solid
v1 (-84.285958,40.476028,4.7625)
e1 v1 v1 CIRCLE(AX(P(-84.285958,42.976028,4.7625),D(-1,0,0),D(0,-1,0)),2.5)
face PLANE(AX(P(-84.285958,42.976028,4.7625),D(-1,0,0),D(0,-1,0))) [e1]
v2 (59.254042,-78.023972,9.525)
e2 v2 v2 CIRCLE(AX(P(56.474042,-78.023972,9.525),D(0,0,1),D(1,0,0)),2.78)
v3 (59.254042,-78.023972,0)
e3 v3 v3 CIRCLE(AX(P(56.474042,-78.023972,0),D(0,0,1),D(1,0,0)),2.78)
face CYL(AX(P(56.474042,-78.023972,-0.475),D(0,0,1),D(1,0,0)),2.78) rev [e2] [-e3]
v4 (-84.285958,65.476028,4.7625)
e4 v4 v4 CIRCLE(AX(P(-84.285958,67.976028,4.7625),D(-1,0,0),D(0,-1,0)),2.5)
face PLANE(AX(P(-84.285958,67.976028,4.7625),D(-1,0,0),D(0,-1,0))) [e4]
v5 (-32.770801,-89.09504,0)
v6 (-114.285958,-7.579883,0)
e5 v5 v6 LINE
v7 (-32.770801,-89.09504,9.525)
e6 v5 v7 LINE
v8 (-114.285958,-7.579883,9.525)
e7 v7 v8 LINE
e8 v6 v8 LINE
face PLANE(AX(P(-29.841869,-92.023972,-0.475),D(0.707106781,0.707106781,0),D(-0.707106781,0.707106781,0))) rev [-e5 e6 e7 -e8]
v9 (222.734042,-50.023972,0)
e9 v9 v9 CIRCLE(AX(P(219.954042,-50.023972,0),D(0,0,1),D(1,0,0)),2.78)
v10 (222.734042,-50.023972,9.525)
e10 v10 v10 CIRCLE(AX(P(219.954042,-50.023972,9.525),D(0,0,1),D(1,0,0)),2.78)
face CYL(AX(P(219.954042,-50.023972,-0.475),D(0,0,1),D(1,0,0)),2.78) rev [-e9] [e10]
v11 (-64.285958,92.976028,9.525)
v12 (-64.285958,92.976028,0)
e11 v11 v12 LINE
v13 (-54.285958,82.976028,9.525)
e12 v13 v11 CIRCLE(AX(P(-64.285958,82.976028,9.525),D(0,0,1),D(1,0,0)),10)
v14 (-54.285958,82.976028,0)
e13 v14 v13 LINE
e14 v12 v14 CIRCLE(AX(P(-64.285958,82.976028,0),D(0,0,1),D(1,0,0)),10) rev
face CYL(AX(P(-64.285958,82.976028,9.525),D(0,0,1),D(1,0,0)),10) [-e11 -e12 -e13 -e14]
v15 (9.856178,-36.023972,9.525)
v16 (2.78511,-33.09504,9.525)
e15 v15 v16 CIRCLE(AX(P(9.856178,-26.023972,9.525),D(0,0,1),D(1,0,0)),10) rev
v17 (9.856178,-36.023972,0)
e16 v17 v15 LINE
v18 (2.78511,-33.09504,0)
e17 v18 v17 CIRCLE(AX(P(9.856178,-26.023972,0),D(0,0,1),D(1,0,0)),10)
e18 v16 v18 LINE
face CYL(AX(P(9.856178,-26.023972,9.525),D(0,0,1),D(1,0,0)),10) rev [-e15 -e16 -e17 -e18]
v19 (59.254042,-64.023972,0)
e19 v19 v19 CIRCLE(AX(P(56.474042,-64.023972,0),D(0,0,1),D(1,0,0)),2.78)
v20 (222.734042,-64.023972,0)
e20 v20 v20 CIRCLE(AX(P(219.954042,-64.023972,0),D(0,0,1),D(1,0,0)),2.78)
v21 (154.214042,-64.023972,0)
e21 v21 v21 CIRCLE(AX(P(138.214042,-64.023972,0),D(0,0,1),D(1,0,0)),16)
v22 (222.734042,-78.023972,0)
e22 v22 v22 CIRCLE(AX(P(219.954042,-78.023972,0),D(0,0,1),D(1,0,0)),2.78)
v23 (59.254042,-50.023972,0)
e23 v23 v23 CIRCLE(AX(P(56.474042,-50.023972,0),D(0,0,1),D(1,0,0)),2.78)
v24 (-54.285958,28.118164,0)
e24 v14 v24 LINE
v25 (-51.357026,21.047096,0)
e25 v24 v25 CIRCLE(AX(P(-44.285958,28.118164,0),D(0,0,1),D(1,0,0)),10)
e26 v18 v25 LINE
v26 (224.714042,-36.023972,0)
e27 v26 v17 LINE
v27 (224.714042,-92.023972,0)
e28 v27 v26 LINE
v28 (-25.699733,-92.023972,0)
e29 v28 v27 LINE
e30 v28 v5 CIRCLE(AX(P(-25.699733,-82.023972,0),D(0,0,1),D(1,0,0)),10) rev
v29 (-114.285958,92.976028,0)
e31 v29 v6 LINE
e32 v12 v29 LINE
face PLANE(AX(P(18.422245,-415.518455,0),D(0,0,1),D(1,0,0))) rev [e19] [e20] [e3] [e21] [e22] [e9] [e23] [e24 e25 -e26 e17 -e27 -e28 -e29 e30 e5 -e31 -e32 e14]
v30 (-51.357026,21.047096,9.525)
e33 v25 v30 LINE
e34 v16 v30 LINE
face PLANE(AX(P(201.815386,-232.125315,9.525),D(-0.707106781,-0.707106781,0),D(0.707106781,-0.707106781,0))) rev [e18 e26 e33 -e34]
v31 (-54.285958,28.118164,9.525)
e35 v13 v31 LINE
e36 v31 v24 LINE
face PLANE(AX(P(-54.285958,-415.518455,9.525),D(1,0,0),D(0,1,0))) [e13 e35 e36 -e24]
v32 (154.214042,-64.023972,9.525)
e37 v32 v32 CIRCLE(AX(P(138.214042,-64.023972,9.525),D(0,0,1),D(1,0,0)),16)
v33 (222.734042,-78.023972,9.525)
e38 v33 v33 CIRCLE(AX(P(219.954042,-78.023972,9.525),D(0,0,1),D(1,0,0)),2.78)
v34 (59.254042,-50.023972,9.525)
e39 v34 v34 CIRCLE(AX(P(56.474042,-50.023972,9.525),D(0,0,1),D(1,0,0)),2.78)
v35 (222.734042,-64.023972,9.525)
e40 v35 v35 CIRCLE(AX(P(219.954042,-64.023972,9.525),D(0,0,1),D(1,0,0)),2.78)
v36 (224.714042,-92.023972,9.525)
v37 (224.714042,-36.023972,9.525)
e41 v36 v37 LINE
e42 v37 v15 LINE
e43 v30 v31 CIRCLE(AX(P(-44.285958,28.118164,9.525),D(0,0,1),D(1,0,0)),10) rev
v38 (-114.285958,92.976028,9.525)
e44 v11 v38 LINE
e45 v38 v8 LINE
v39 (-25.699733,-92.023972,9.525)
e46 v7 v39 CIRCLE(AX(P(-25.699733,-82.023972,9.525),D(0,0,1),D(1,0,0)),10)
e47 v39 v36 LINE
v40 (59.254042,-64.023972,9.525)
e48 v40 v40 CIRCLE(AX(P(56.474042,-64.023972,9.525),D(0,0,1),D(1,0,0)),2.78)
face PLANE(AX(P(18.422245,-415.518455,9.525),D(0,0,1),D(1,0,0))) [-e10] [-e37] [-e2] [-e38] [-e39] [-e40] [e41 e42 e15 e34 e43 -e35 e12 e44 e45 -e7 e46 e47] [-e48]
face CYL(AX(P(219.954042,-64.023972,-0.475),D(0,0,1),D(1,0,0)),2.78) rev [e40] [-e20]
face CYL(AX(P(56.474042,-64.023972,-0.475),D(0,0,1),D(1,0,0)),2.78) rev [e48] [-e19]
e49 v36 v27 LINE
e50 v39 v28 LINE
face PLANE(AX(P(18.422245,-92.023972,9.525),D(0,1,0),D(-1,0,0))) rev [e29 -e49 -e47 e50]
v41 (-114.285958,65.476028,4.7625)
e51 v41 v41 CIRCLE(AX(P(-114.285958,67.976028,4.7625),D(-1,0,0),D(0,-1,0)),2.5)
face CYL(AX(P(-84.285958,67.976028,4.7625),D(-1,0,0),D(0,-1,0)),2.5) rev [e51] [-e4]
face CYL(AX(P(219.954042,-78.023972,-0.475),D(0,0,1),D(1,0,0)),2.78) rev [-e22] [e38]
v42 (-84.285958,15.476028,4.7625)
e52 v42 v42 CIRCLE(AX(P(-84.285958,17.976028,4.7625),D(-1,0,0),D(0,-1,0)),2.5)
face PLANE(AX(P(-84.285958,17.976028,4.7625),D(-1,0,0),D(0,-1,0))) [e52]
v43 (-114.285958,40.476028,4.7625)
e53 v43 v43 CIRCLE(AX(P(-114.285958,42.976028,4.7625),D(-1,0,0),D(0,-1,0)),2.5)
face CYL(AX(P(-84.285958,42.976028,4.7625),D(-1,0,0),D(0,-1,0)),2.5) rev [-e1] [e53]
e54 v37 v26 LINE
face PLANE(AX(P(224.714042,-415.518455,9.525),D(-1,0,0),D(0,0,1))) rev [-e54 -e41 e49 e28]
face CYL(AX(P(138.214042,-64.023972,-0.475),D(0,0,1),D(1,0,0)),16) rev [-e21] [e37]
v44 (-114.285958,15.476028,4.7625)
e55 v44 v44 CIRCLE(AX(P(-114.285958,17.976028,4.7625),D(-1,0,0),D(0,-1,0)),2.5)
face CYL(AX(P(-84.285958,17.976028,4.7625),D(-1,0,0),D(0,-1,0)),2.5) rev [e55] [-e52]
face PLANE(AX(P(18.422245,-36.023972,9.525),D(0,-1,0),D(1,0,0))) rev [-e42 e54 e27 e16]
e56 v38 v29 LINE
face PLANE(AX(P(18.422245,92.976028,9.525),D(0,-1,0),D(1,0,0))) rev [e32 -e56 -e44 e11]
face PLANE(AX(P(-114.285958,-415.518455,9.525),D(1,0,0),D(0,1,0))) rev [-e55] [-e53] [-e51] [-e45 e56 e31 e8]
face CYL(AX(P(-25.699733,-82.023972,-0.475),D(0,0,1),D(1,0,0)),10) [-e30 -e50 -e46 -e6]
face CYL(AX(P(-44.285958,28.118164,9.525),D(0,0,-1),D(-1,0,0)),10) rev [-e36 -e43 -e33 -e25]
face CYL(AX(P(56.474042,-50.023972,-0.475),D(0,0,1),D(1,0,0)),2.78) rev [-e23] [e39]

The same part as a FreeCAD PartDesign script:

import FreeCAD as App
import Part
import Sketcher
from FreeCAD import Vector


def edges_at(feature, points):
    """Names of the edges that pass closest to the given points."""
    edges = feature.Shape.Edges
    near = lambda p: min(range(len(edges)), key=lambda i: edges[i].distToShape(Part.Vertex(*p))[0])
    return sorted({f"Edge{near(p) + 1}" for p in points})

doc = App.newDocument("Part")
body = doc.addObject("PartDesign::Body", "Body")

# Sketch on XY plane
sketch1 = body.newObject("Sketcher::SketchObject", "Sketch")
sketch1.AttachmentSupport = (doc.getObject("XY_Plane"), [""])
sketch1.MapMode = "FlatFace"
sketch1.addGeometry([
    Part.LineSegment(Vector(-114, -92, 0), Vector(225, -92, 0)),  # 0
    Part.LineSegment(Vector(225, -92, 0), Vector(225, -36, 0)),  # 1
    Part.LineSegment(Vector(225, -36, 0), Vector(6, -36, 0)),  # 2
    Part.LineSegment(Vector(6, -36, 0), Vector(-54, 24, 0)),  # 3
    Part.LineSegment(Vector(-54, 24, 0), Vector(-54, 93, 0)),  # 4
    Part.LineSegment(Vector(-54, 93, 0), Vector(-114, 93, 0)),  # 5
    Part.LineSegment(Vector(-114, 93, 0), Vector(-114, -92, 0)),  # 6
], False)
sketch1.addConstraint([
    Sketcher.Constraint("Coincident", 0, 2, 1, 1),
    Sketcher.Constraint("Coincident", 1, 2, 2, 1),
    Sketcher.Constraint("Coincident", 2, 2, 3, 1),
    Sketcher.Constraint("Coincident", 3, 2, 4, 1),
    Sketcher.Constraint("Coincident", 4, 2, 5, 1),
    Sketcher.Constraint("Coincident", 5, 2, 6, 1),
    Sketcher.Constraint("Coincident", 6, 2, 0, 1),
    Sketcher.Constraint("Horizontal", 0),
    Sketcher.Constraint("Vertical", 1),
    Sketcher.Constraint("Horizontal", 2),
    Sketcher.Constraint("Vertical", 4),
    Sketcher.Constraint("Horizontal", 5),
    Sketcher.Constraint("Vertical", 6),
    Sketcher.Constraint("DistanceX", 0, 1, 0, 2, 339.0),
    Sketcher.Constraint("DistanceX", 2, 2, 2, 1, 219.0),
    Sketcher.Constraint("DistanceX", 5, 2, 5, 1, 60.0),
    Sketcher.Constraint("DistanceY", 1, 1, 1, 2, 56.0),
    Sketcher.Constraint("DistanceY", 4, 1, 4, 2, 69.0),
    Sketcher.Constraint("DistanceY", 6, 2, 6, 1, 185.0),
    Sketcher.Constraint("DistanceY", 0, 2, -1, 1, 92.023972),
    Sketcher.Constraint("DistanceX", -1, 1, 0, 2, 224.714042),
])
pad1 = body.newObject("PartDesign::Pad", "Pad")
pad1.Profile = sketch1
pad1.Length = 9.525

# Sketch on XY plane
sketch2 = body.newObject("Sketcher::SketchObject", "Sketch001")
sketch2.AttachmentSupport = (doc.getObject("XY_Plane"), [""])
sketch2.MapMode = "FlatFace"
sketch2.AttachmentOffset = App.Placement(Vector(0, 0, 9.525), App.Rotation())
sketch2.addGeometry(Part.Circle(Vector(138, -64, 0), Vector(0, 0, 1), 16), False)
sketch2.addConstraint([
    Sketcher.Constraint("Diameter", 0, 32.0),
    Sketcher.Constraint("DistanceY", 0, 3, -1, 1, 64.023972),
    Sketcher.Constraint("DistanceX", -1, 1, 0, 3, 138.214042),
])
pocket1 = body.newObject("PartDesign::Pocket", "Pocket")
pocket1.Profile = sketch2
pocket1.Length = 10

# Sketch on YZ plane
sketch3 = body.newObject("Sketcher::SketchObject", "Sketch002")
sketch3.AttachmentSupport = (doc.getObject("YZ_Plane"), [""])
sketch3.MapMode = "FlatFace"
sketch3.AttachmentOffset = App.Placement(Vector(0, 0, -114.285958), App.Rotation())
sketch3.addGeometry([
    Part.Circle(Vector(68, 4.8, 0), Vector(0, 0, 1), 2.5),
    Part.Circle(Vector(43, 4.8, 0), Vector(0, 0, 1), 2.5),
    Part.Circle(Vector(18, 4.8, 0), Vector(0, 0, 1), 2.5),
], False)
sketch3.addConstraint([
    Sketcher.Constraint("Equal", 0, 1),
    Sketcher.Constraint("Equal", 1, 2),
    Sketcher.Constraint("Horizontal", 0, 3, 1, 3),
    Sketcher.Constraint("Horizontal", 1, 3, 2, 3),
    Sketcher.Constraint("Diameter", 0, 5.0),
    Sketcher.Constraint("DistanceX", 1, 3, 0, 3, 25.0),
    Sketcher.Constraint("DistanceX", 2, 3, 1, 3, 25.0),
    Sketcher.Constraint("DistanceY", -1, 1, 0, 3, 4.7625),
    Sketcher.Constraint("DistanceX", -1, 1, 0, 3, 67.976028),
])
pocket2 = body.newObject("PartDesign::Pocket", "Pocket001")
pocket2.Profile = sketch3
pocket2.Length = 30
pocket2.Reversed = True

# Sketch on XY plane
sketch4 = body.newObject("Sketcher::SketchObject", "Sketch003")
sketch4.AttachmentSupport = (doc.getObject("XY_Plane"), [""])
sketch4.MapMode = "FlatFace"
sketch4.AttachmentOffset = App.Placement(Vector(0, 0, 9.525), App.Rotation())
sketch4.addGeometry([
    Part.LineSegment(Vector(-30, -92, 0), Vector(-114, -8, 0)),
    Part.LineSegment(Vector(-114, -8, 0), Vector(-114, -92, 0)),
    Part.LineSegment(Vector(-114, -92, 0), Vector(-30, -92, 0)),
], False)
sketch4.addConstraint([
    Sketcher.Constraint("Coincident", 0, 2, 1, 1),
    Sketcher.Constraint("Coincident", 1, 2, 2, 1),
    Sketcher.Constraint("Coincident", 2, 2, 0, 1),
    Sketcher.Constraint("Vertical", 1),
    Sketcher.Constraint("Horizontal", 2),
    Sketcher.Constraint("Equal", 2, 1),
    Sketcher.Constraint("DistanceX", 2, 1, 2, 2, 84.444089),
    Sketcher.Constraint("DistanceY", 1, 2, -1, 1, 92.023972),
    Sketcher.Constraint("DistanceX", 2, 2, -1, 1, 29.841869),
])
pocket3 = body.newObject("PartDesign::Pocket", "Pocket002")
pocket3.Profile = sketch4
pocket3.Length = 10

# Sketch on XY plane
sketch5 = body.newObject("Sketcher::SketchObject", "Sketch004")
sketch5.AttachmentSupport = (doc.getObject("XY_Plane"), [""])
sketch5.MapMode = "FlatFace"
sketch5.AttachmentOffset = App.Placement(Vector(0, 0, 9.525), App.Rotation())
sketch5.addGeometry([
    Part.Circle(Vector(56.5, -50, 0), Vector(0, 0, 1), 2.8),
    Part.Circle(Vector(56.5, -64, 0), Vector(0, 0, 1), 2.8),
    Part.Circle(Vector(56.5, -78, 0), Vector(0, 0, 1), 2.8),
], False)
sketch5.addConstraint([
    Sketcher.Constraint("Equal", 0, 1),
    Sketcher.Constraint("Equal", 1, 2),
    Sketcher.Constraint("Vertical", 0, 3, 1, 3),
    Sketcher.Constraint("Vertical", 1, 3, 2, 3),
    Sketcher.Constraint("Diameter", 0, 5.56),
    Sketcher.Constraint("DistanceY", 1, 3, 0, 3, 14.0),
    Sketcher.Constraint("DistanceY", 2, 3, 1, 3, 14.0),
    Sketcher.Constraint("DistanceY", 0, 3, -1, 1, 50.023972),
    Sketcher.Constraint("DistanceX", -1, 1, 0, 3, 56.474042),
])
pocket4 = body.newObject("PartDesign::Pocket", "Pocket003")
pocket4.Profile = sketch5
pocket4.Length = 10
doc.recompute()

fillet = body.newObject("PartDesign::Fillet", "Fillet")
fillet.Base = (pocket4, edges_at(pocket4, [
    (-54.286, 92.976, 4.763),
    (-54.286, 23.976, 4.763),
    (5.714, -36.024, 4.763),
    (-29.842, -92.024, 4.763),
]))
fillet.Radius = 10

# Sketch on XY plane
sketch6 = body.newObject("Sketcher::SketchObject", "Sketch005")
sketch6.AttachmentSupport = (doc.getObject("XY_Plane"), [""])
sketch6.MapMode = "FlatFace"
sketch6.AttachmentOffset = App.Placement(Vector(0, 0, 9.525), App.Rotation())
sketch6.addGeometry([
    Part.Circle(Vector(220, -78, 0), Vector(0, 0, 1), 2.8),
    Part.Circle(Vector(220, -64, 0), Vector(0, 0, 1), 2.8),
    Part.Circle(Vector(220, -50, 0), Vector(0, 0, 1), 2.8),
], False)
sketch6.addConstraint([
    Sketcher.Constraint("Equal", 0, 1),
    Sketcher.Constraint("Equal", 1, 2),
    Sketcher.Constraint("Vertical", 0, 3, 1, 3),
    Sketcher.Constraint("Vertical", 1, 3, 2, 3),
    Sketcher.Constraint("Diameter", 0, 5.56),
    Sketcher.Constraint("DistanceY", 0, 3, 1, 3, 14.0),
    Sketcher.Constraint("DistanceY", 1, 3, 2, 3, 14.0),
    Sketcher.Constraint("DistanceY", 0, 3, -1, 1, 78.023972),
    Sketcher.Constraint("DistanceX", -1, 1, 0, 3, 219.954042),
])
pocket5 = body.newObject("PartDesign::Pocket", "Pocket004")
pocket5.Profile = sketch6
pocket5.Length = 10

doc.recompute()
